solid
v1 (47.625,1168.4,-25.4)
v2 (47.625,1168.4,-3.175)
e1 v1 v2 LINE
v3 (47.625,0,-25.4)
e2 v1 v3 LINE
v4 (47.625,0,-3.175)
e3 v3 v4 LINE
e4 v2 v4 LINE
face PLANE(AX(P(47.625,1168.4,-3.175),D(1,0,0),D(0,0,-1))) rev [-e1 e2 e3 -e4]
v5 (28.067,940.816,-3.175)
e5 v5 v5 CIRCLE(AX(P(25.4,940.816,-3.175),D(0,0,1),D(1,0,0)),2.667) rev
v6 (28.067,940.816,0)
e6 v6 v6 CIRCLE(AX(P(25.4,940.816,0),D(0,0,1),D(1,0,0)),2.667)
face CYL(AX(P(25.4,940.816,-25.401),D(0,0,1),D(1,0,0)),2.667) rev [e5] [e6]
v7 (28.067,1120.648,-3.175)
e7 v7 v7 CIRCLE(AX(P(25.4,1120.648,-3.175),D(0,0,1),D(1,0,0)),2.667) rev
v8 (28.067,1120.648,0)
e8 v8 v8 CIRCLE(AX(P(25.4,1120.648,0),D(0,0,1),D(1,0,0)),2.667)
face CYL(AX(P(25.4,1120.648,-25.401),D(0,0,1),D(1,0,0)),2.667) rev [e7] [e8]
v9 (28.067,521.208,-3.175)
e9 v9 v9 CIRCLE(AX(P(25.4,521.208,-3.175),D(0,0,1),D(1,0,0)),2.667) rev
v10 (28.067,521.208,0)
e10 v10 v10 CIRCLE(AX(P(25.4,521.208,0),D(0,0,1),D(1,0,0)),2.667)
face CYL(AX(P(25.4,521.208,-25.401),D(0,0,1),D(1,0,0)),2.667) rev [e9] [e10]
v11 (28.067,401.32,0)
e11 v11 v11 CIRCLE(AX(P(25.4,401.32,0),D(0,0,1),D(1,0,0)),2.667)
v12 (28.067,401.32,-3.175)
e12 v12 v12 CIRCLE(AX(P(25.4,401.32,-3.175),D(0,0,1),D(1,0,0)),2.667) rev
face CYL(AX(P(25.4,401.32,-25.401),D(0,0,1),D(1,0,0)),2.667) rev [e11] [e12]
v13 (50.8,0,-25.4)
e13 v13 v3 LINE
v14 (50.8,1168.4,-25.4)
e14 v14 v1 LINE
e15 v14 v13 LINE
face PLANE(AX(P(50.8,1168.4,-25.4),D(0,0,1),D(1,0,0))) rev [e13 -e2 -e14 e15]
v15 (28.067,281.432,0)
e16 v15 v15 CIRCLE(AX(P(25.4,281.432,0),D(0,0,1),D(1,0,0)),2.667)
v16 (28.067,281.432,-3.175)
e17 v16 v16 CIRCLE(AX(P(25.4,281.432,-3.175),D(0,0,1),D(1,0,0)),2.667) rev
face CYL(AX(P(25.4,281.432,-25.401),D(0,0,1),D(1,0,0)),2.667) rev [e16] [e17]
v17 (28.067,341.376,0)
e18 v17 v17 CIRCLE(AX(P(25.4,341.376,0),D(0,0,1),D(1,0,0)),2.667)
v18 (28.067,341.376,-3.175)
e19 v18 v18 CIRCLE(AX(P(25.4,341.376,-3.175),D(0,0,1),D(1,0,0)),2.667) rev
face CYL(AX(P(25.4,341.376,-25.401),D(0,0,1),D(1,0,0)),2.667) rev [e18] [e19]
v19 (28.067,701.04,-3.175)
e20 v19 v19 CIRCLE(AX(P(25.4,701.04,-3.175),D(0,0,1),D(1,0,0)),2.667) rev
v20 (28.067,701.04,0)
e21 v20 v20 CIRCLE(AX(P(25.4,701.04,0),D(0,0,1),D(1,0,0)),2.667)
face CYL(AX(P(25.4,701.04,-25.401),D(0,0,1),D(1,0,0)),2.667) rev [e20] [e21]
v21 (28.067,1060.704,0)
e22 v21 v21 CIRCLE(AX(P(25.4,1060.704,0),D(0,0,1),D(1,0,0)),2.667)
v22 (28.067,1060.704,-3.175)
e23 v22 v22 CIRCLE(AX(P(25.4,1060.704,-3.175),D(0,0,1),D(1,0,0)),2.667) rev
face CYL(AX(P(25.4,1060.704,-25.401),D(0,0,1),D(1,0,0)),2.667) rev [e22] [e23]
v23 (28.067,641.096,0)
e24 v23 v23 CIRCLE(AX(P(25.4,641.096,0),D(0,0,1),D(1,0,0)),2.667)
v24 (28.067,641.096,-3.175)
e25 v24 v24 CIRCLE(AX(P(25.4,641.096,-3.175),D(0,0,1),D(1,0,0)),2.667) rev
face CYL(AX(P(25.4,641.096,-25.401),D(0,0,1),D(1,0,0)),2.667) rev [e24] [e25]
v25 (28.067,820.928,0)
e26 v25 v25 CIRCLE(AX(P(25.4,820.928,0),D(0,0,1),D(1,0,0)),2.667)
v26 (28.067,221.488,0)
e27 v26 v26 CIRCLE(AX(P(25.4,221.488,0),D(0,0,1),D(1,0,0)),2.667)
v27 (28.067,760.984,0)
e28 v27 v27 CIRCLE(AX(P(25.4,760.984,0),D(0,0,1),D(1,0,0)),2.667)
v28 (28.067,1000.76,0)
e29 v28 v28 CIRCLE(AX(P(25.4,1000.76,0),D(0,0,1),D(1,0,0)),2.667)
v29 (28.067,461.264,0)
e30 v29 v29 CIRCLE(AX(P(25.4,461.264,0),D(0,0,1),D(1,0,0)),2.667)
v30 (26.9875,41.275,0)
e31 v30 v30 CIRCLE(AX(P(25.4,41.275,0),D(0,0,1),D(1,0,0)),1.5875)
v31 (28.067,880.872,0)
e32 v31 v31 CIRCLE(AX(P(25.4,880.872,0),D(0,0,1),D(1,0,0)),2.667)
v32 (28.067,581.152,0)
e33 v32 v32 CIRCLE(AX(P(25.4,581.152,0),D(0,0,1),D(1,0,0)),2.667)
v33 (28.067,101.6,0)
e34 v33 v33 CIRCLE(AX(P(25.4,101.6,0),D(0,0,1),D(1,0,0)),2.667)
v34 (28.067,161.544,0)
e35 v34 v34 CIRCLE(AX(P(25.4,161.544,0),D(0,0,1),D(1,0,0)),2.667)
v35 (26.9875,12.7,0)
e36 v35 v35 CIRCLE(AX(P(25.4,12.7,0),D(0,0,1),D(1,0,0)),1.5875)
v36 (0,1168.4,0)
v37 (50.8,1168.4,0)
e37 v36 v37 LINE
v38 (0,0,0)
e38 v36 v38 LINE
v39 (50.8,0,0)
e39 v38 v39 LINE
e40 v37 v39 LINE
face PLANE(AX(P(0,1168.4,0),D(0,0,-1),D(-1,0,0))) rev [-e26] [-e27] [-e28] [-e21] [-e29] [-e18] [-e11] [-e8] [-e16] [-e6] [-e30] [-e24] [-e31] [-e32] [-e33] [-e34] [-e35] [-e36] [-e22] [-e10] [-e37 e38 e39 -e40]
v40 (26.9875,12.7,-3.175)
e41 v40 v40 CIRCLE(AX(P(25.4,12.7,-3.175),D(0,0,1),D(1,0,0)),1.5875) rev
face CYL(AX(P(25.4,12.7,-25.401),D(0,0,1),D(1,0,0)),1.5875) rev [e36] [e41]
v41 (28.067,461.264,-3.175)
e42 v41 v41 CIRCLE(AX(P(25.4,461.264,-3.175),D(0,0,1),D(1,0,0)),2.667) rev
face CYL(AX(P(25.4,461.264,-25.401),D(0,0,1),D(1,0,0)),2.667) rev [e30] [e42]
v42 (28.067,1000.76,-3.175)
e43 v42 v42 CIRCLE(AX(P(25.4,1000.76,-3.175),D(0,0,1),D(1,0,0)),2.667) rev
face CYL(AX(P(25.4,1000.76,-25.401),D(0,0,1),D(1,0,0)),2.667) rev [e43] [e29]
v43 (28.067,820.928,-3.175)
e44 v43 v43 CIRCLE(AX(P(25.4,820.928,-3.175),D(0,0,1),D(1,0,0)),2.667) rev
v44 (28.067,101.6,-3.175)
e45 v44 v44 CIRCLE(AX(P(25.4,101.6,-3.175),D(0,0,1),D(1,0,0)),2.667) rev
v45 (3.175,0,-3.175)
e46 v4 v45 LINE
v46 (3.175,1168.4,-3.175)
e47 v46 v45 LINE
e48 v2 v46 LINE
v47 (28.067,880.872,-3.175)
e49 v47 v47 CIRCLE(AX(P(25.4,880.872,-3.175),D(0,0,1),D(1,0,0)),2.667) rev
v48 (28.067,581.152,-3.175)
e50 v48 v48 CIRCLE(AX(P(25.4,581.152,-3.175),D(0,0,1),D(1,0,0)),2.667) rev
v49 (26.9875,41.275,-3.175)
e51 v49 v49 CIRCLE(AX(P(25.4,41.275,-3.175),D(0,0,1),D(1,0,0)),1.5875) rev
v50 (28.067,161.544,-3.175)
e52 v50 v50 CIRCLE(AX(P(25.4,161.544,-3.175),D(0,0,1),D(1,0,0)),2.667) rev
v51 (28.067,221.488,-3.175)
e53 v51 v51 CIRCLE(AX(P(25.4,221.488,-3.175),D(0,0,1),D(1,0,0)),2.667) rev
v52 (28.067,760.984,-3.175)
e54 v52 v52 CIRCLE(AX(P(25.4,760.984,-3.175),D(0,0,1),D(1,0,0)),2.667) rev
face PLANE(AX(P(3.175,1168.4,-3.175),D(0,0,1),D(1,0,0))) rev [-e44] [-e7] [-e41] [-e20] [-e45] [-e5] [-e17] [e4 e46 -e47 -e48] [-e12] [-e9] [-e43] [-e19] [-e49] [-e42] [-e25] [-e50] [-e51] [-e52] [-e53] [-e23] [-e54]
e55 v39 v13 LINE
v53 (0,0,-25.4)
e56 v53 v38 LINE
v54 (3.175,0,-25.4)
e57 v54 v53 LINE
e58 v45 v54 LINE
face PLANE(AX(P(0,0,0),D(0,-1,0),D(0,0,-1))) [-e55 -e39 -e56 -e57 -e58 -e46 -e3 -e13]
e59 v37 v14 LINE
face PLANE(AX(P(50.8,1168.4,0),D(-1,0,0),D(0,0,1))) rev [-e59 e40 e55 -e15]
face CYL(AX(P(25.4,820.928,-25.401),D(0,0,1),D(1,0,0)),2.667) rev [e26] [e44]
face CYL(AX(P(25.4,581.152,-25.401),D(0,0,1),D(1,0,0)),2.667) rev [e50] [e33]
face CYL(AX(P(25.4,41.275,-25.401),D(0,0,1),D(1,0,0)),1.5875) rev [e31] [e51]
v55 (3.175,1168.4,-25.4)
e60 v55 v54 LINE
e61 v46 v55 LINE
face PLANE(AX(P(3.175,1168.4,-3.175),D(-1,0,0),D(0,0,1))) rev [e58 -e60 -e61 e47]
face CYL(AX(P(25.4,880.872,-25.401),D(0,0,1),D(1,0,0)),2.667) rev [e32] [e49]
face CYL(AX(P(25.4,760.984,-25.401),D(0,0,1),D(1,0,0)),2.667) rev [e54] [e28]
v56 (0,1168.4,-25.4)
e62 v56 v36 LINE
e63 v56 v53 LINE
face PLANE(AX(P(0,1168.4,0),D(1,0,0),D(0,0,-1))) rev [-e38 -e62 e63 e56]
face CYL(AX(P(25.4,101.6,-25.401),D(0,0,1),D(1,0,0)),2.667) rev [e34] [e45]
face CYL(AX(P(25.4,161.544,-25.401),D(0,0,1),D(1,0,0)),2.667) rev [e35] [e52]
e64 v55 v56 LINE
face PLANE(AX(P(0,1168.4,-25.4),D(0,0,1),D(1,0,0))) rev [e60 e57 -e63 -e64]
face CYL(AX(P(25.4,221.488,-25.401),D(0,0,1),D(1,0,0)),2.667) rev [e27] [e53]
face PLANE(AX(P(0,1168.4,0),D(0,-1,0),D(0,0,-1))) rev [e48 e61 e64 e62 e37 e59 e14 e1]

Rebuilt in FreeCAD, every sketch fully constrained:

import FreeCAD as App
import Part
import Sketcher
from FreeCAD import Vector
Q = App.Units.Quantity

doc = App.newDocument("Part")
params = doc.addObject("Spreadsheet::Sheet", "Params")
for row, (alias, value) in enumerate([
    ("sketch1_width", "2 in"),
    ("sketch1_height", "1 in"),
    ("sketch1_width2", "1.75 in"),
    ("sketch1_height2", "0.875 in"),
    ("pad1_length", "46 in"),
    ("sketch2_diameter", "0.21 in"),
    ("sketch3_diameter", "0.21 in"),
    ("sketch4_diameter", "0.21 in"),
    ("sketch5_diameter", "0.21 in"),
    ("sketch6_diameter", "0.21 in"),
    ("sketch7_diameter", "0.21 in"),
    ("sketch8_diameter", "0.21 in"),
    ("sketch9_diameter", "0.21 in"),
    ("sketch10_diameter", "0.21 in"),
    ("sketch11_diameter", "0.21 in"),
    ("sketch12_diameter", "0.21 in"),
    ("sketch13_diameter", "0.21 in"),
    ("sketch14_diameter", "0.21 in"),
    ("sketch15_diameter", "0.21 in"),
    ("sketch16_diameter", "0.21 in"),
    ("sketch17_diameter", "0.21 in"),
    ("sketch18_diameter", "0.21 in"),
    ("sketch19_diameter", "0.21 in"),
    ("sketch20_diameter", "0.125 in"),
    ("sketch21_diameter", "0.125 in"),
], start=1):
    params.set(f"A{row}", alias)
    params.set(f"B{row}", "=" + value)
    params.setAlias(f"B{row}", alias)

body = doc.addObject("PartDesign::Body", "Body")

# Sketch on XZ plane
sketch1 = body.newObject("Sketcher::SketchObject", "Sketch")
sketch1.AttachmentSupport = (doc.getObject("XZ_Plane"), [""])
sketch1.MapMode = "FlatFace"
sketch1.addGeometry([
    Part.LineSegment(Vector(3.2, -3.2, 0), Vector(3.2, -25.4, 0)),  # 0
    Part.LineSegment(Vector(3.2, -25.4, 0), Vector(0, -25.4, 0)),  # 1
    Part.LineSegment(Vector(0, -25.4, 0), Vector(0, 0, 0)),  # 2
    Part.LineSegment(Vector(0, 0, 0), Vector(50.8, 0, 0)),  # 3
    Part.LineSegment(Vector(50.8, 0, 0), Vector(50.8, -25.4, 0)),  # 4
    Part.LineSegment(Vector(50.8, -25.4, 0), Vector(47.6, -25.4, 0)),  # 5
    Part.LineSegment(Vector(47.6, -25.4, 0), Vector(47.6, -3.2, 0)),  # 6
    Part.LineSegment(Vector(47.6, -3.2, 0), Vector(3.2, -3.2, 0)),  # 7
], False)
sketch1.addConstraint([
    Sketcher.Constraint("Coincident", 0, 2, 1, 1),
    Sketcher.Constraint("Coincident", 1, 2, 2, 1),
    Sketcher.Constraint("Coincident", 2, 2, 3, 1),
    Sketcher.Constraint("Coincident", 3, 2, 4, 1),
    Sketcher.Constraint("Coincident", 4, 2, 5, 1),
    Sketcher.Constraint("Coincident", 5, 2, 6, 1),
    Sketcher.Constraint("Coincident", 6, 2, 7, 1),
    Sketcher.Constraint("Coincident", 7, 2, 0, 1),
    Sketcher.Constraint("Vertical", 0),
    Sketcher.Constraint("Horizontal", 1),
    Sketcher.Constraint("Vertical", 2),
    Sketcher.Constraint("Horizontal", 3),
    Sketcher.Constraint("Vertical", 4),
    Sketcher.Constraint("Horizontal", 5),
    Sketcher.Constraint("Vertical", 6),
    Sketcher.Constraint("Horizontal", 7),
    Sketcher.Constraint("Coincident", 2, 2, -1, 1),
    Sketcher.Constraint("Horizontal", 1, 2, 4, 2),
    Sketcher.Constraint("Equal", 1, 5),
    Sketcher.Constraint("DistanceX", 3, 1, 3, 2, Q("2 in")),
    Sketcher.Constraint("DistanceY", 2, 1, 2, 2, Q("1 in")),
    Sketcher.Constraint("DistanceX", 7, 2, 7, 1, Q("1.75 in")),
    Sketcher.Constraint("DistanceY", 0, 2, 0, 1, Q("0.875 in")),
])
sketch1.setExpression("Constraints[19]", "Params.sketch1_width")
sketch1.setExpression("Constraints[20]", "Params.sketch1_height")
sketch1.setExpression("Constraints[21]", "Params.sketch1_width2")
sketch1.setExpression("Constraints[22]", "Params.sketch1_height2")
pad1 = body.newObject("PartDesign::Pad", "Pad")
pad1.Profile = sketch1
pad1.setExpression("Length", "Params.pad1_length")
pad1.Reversed = True

# Sketch on XY plane
sketch2 = body.newObject("Sketcher::SketchObject", "Sketch001")
sketch2.AttachmentSupport = (doc.getObject("XY_Plane"), [""])
sketch2.MapMode = "FlatFace"
sketch2.addGeometry(Part.Circle(Vector(25.4, 101.6, 0), Vector(0, 0, 1), 2.7), False)
sketch2.addConstraint([
    Sketcher.Constraint("Diameter", 0, Q("0.21 in")),
    Sketcher.Constraint("DistanceX", -1, 1, 0, 3, Q("1 in")),
    Sketcher.Constraint("DistanceY", -1, 1, 0, 3, Q("4 in")),
])
sketch2.setExpression("Constraints[0]", "Params.sketch2_diameter")
pocket1 = body.newObject("PartDesign::Pocket", "Pocket")
pocket1.Profile = sketch2
pocket1.Type = "UpToFirst"

# Sketch on XY plane
sketch3 = body.newObject("Sketcher::SketchObject", "Sketch002")
sketch3.AttachmentSupport = (doc.getObject("XY_Plane"), [""])
sketch3.MapMode = "FlatFace"
sketch3.addGeometry(Part.Circle(Vector(25.4, 161.5, 0), Vector(0, 0, 1), 2.7), False)
sketch3.addConstraint([
    Sketcher.Constraint("Diameter", 0, Q("0.21 in")),
    Sketcher.Constraint("DistanceX", -1, 1, 0, 3, Q("1 in")),
    Sketcher.Constraint("DistanceY", -1, 1, 0, 3, Q("6.36 in")),
])
sketch3.setExpression("Constraints[0]", "Params.sketch3_diameter")
pocket2 = body.newObject("PartDesign::Pocket", "Pocket001")
pocket2.Profile = sketch3
pocket2.Type = "UpToFirst"

# Sketch on XY plane
sketch4 = body.newObject("Sketcher::SketchObject", "Sketch003")
sketch4.AttachmentSupport = (doc.getObject("XY_Plane"), [""])
sketch4.MapMode = "FlatFace"
sketch4.addGeometry(Part.Circle(Vector(25.4, 221.5, 0), Vector(0, 0, 1), 2.7), False)
sketch4.addConstraint([
    Sketcher.Constraint("Diameter", 0, Q("0.21 in")),
    Sketcher.Constraint("DistanceX", -1, 1, 0, 3, Q("1 in")),
    Sketcher.Constraint("DistanceY", -1, 1, 0, 3, Q("8.72 in")),
])
sketch4.setExpression("Constraints[0]", "Params.sketch4_diameter")
pocket3 = body.newObject("PartDesign::Pocket", "Pocket002")
pocket3.Profile = sketch4
pocket3.Type = "UpToFirst"

# Sketch on XY plane
sketch5 = body.newObject("Sketcher::SketchObject", "Sketch004")
sketch5.AttachmentSupport = (doc.getObject("XY_Plane"), [""])
sketch5.MapMode = "FlatFace"
sketch5.addGeometry(Part.Circle(Vector(25.4, 281.4, 0), Vector(0, 0, 1), 2.7), False)
sketch5.addConstraint([
    Sketcher.Constraint("Diameter", 0, Q("0.21 in")),
    Sketcher.Constraint("DistanceX", -1, 1, 0, 3, Q("1 in")),
    Sketcher.Constraint("DistanceY", -1, 1, 0, 3, Q("11.08 in")),
])
sketch5.setExpression("Constraints[0]", "Params.sketch5_diameter")
pocket4 = body.newObject("PartDesign::Pocket", "Pocket003")
pocket4.Profile = sketch5
pocket4.Type = "UpToFirst"

# Sketch on XY plane
sketch6 = body.newObject("Sketcher::SketchObject", "Sketch005")
sketch6.AttachmentSupport = (doc.getObject("XY_Plane"), [""])
sketch6.MapMode = "FlatFace"
sketch6.addGeometry(Part.Circle(Vector(25.4, 341.4, 0), Vector(0, 0, 1), 2.7), False)
sketch6.addConstraint([
    Sketcher.Constraint("Diameter", 0, Q("0.21 in")),
    Sketcher.Constraint("DistanceX", -1, 1, 0, 3, Q("1 in")),
    Sketcher.Constraint("DistanceY", -1, 1, 0, 3, Q("13.44 in")),
])
sketch6.setExpression("Constraints[0]", "Params.sketch6_diameter")
pocket5 = body.newObject("PartDesign::Pocket", "Pocket004")
pocket5.Profile = sketch6
pocket5.Type = "UpToFirst"

# Sketch on XY plane
sketch7 = body.newObject("Sketcher::SketchObject", "Sketch006")
sketch7.AttachmentSupport = (doc.getObject("XY_Plane"), [""])
sketch7.MapMode = "FlatFace"
sketch7.addGeometry(Part.Circle(Vector(25.4, 401.3, 0), Vector(0, 0, 1), 2.7), False)
sketch7.addConstraint([
    Sketcher.Constraint("Diameter", 0, Q("0.21 in")),
    Sketcher.Constraint("DistanceX", -1, 1, 0, 3, Q("1 in")),
    Sketcher.Constraint("DistanceY", -1, 1, 0, 3, Q("15.8 in")),
])
sketch7.setExpression("Constraints[0]", "Params.sketch7_diameter")
pocket6 = body.newObject("PartDesign::Pocket", "Pocket005")
pocket6.Profile = sketch7
pocket6.Type = "UpToFirst"

# Sketch on XY plane
sketch8 = body.newObject("Sketcher::SketchObject", "Sketch007")
sketch8.AttachmentSupport = (doc.getObject("XY_Plane"), [""])
sketch8.MapMode = "FlatFace"
sketch8.addGeometry(Part.Circle(Vector(25.4, 461.3, 0), Vector(0, 0, 1), 2.7), False)
sketch8.addConstraint([
    Sketcher.Constraint("Diameter", 0, Q("0.21 in")),
    Sketcher.Constraint("DistanceX", -1, 1, 0, 3, Q("1 in")),
    Sketcher.Constraint("DistanceY", -1, 1, 0, 3, Q("18.16 in")),
])
sketch8.setExpression("Constraints[0]", "Params.sketch8_diameter")
pocket7 = body.newObject("PartDesign::Pocket", "Pocket006")
pocket7.Profile = sketch8
pocket7.Type = "UpToFirst"

# Sketch on XY plane
sketch9 = body.newObject("Sketcher::SketchObject", "Sketch008")
sketch9.AttachmentSupport = (doc.getObject("XY_Plane"), [""])
sketch9.MapMode = "FlatFace"
sketch9.addGeometry(Part.Circle(Vector(25.4, 521.2, 0), Vector(0, 0, 1), 2.7), False)
sketch9.addConstraint([
    Sketcher.Constraint("Diameter", 0, Q("0.21 in")),
    Sketcher.Constraint("DistanceX", -1, 1, 0, 3, Q("1 in")),
    Sketcher.Constraint("DistanceY", -1, 1, 0, 3, Q("20.52 in")),
])
sketch9.setExpression("Constraints[0]", "Params.sketch9_diameter")
pocket8 = body.newObject("PartDesign::Pocket", "Pocket007")
pocket8.Profile = sketch9
pocket8.Type = "UpToFirst"

# Sketch on XY plane
sketch10 = body.newObject("Sketcher::SketchObject", "Sketch009")
sketch10.AttachmentSupport = (doc.getObject("XY_Plane"), [""])
sketch10.MapMode = "FlatFace"
sketch10.addGeometry(Part.Circle(Vector(25.4, 581.2, 0), Vector(0, 0, 1), 2.7), False)
sketch10.addConstraint([
    Sketcher.Constraint("Diameter", 0, Q("0.21 in")),
    Sketcher.Constraint("DistanceX", -1, 1, 0, 3, Q("1 in")),
    Sketcher.Constraint("DistanceY", -1, 1, 0, 3, Q("22.88 in")),
])
sketch10.setExpression("Constraints[0]", "Params.sketch10_diameter")
pocket9 = body.newObject("PartDesign::Pocket", "Pocket008")
pocket9.Profile = sketch10
pocket9.Type = "UpToFirst"

# Sketch on XY plane
sketch11 = body.newObject("Sketcher::SketchObject", "Sketch010")
sketch11.AttachmentSupport = (doc.getObject("XY_Plane"), [""])
sketch11.MapMode = "FlatFace"
sketch11.addGeometry(Part.Circle(Vector(25.4, 641.1, 0), Vector(0, 0, 1), 2.7), False)
sketch11.addConstraint([
    Sketcher.Constraint("Diameter", 0, Q("0.21 in")),
    Sketcher.Constraint("DistanceX", -1, 1, 0, 3, Q("1 in")),
    Sketcher.Constraint("DistanceY", -1, 1, 0, 3, Q("25.24 in")),
])
sketch11.setExpression("Constraints[0]", "Params.sketch11_diameter")
pocket10 = body.newObject("PartDesign::Pocket", "Pocket009")
pocket10.Profile = sketch11
pocket10.Type = "UpToFirst"

# Sketch on XY plane
sketch12 = body.newObject("Sketcher::SketchObject", "Sketch011")
sketch12.AttachmentSupport = (doc.getObject("XY_Plane"), [""])
sketch12.MapMode = "FlatFace"
sketch12.addGeometry(Part.Circle(Vector(25.4, 701, 0), Vector(0, 0, 1), 2.7), False)
sketch12.addConstraint([
    Sketcher.Constraint("Diameter", 0, Q("0.21 in")),
    Sketcher.Constraint("DistanceX", -1, 1, 0, 3, Q("1 in")),
    Sketcher.Constraint("DistanceY", -1, 1, 0, 3, Q("27.6 in")),
])
sketch12.setExpression("Constraints[0]", "Params.sketch12_diameter")
pocket11 = body.newObject("PartDesign::Pocket", "Pocket010")
pocket11.Profile = sketch12
pocket11.Type = "UpToFirst"

# Sketch on XY plane
sketch13 = body.newObject("Sketcher::SketchObject", "Sketch012")
sketch13.AttachmentSupport = (doc.getObject("XY_Plane"), [""])
sketch13.MapMode = "FlatFace"
sketch13.addGeometry(Part.Circle(Vector(25.4, 761, 0), Vector(0, 0, 1), 2.7), False)
sketch13.addConstraint([
    Sketcher.Constraint("Diameter", 0, Q("0.21 in")),
    Sketcher.Constraint("DistanceX", -1, 1, 0, 3, Q("1 in")),
    Sketcher.Constraint("DistanceY", -1, 1, 0, 3, Q("29.96 in")),
])
sketch13.setExpression("Constraints[0]", "Params.sketch13_diameter")
pocket12 = body.newObject("PartDesign::Pocket", "Pocket011")
pocket12.Profile = sketch13
pocket12.Type = "UpToFirst"

# Sketch on XY plane
sketch14 = body.newObject("Sketcher::SketchObject", "Sketch013")
sketch14.AttachmentSupport = (doc.getObject("XY_Plane"), [""])
sketch14.MapMode = "FlatFace"
sketch14.addGeometry(Part.Circle(Vector(25.4, 820.9, 0), Vector(0, 0, 1), 2.7), False)
sketch14.addConstraint([
    Sketcher.Constraint("Diameter", 0, Q("0.21 in")),
    Sketcher.Constraint("DistanceX", -1, 1, 0, 3, Q("1 in")),
    Sketcher.Constraint("DistanceY", -1, 1, 0, 3, Q("32.32 in")),
])
sketch14.setExpression("Constraints[0]", "Params.sketch14_diameter")
pocket13 = body.newObject("PartDesign::Pocket", "Pocket012")
pocket13.Profile = sketch14
pocket13.Type = "UpToFirst"

# Sketch on XY plane
sketch15 = body.newObject("Sketcher::SketchObject", "Sketch014")
sketch15.AttachmentSupport = (doc.getObject("XY_Plane"), [""])
sketch15.MapMode = "FlatFace"
sketch15.addGeometry(Part.Circle(Vector(25.4, 880.9, 0), Vector(0, 0, 1), 2.7), False)
sketch15.addConstraint([
    Sketcher.Constraint("Diameter", 0, Q("0.21 in")),
    Sketcher.Constraint("DistanceX", -1, 1, 0, 3, Q("1 in")),
    Sketcher.Constraint("DistanceY", -1, 1, 0, 3, Q("34.68 in")),
])
sketch15.setExpression("Constraints[0]", "Params.sketch15_diameter")
pocket14 = body.newObject("PartDesign::Pocket", "Pocket013")
pocket14.Profile = sketch15
pocket14.Type = "UpToFirst"

# Sketch on XY plane
sketch16 = body.newObject("Sketcher::SketchObject", "Sketch015")
sketch16.AttachmentSupport = (doc.getObject("XY_Plane"), [""])
sketch16.MapMode = "FlatFace"
sketch16.addGeometry(Part.Circle(Vector(25.4, 940.8, 0), Vector(0, 0, 1), 2.7), False)
sketch16.addConstraint([
    Sketcher.Constraint("Diameter", 0, Q("0.21 in")),
    Sketcher.Constraint("DistanceX", -1, 1, 0, 3, Q("1 in")),
    Sketcher.Constraint("DistanceY", -1, 1, 0, 3, Q("37.04 in")),
])
sketch16.setExpression("Constraints[0]", "Params.sketch16_diameter")
pocket15 = body.newObject("PartDesign::Pocket", "Pocket014")
pocket15.Profile = sketch16
pocket15.Type = "UpToFirst"

# Sketch on XY plane
sketch17 = body.newObject("Sketcher::SketchObject", "Sketch016")
sketch17.AttachmentSupport = (doc.getObject("XY_Plane"), [""])
sketch17.MapMode = "FlatFace"
sketch17.addGeometry(Part.Circle(Vector(25.4, 1000.8, 0), Vector(0, 0, 1), 2.7), False)
sketch17.addConstraint([
    Sketcher.Constraint("Diameter", 0, Q("0.21 in")),
    Sketcher.Constraint("DistanceX", -1, 1, 0, 3, Q("1 in")),
    Sketcher.Constraint("DistanceY", -1, 1, 0, 3, Q("39.4 in")),
])
sketch17.setExpression("Constraints[0]", "Params.sketch17_diameter")
pocket16 = body.newObject("PartDesign::Pocket", "Pocket015")
pocket16.Profile = sketch17
pocket16.Type = "UpToFirst"

# Sketch on XY plane
sketch18 = body.newObject("Sketcher::SketchObject", "Sketch017")
sketch18.AttachmentSupport = (doc.getObject("XY_Plane"), [""])
sketch18.MapMode = "FlatFace"
sketch18.addGeometry(Part.Circle(Vector(25.4, 1060.7, 0), Vector(0, 0, 1), 2.7), False)
sketch18.addConstraint([
    Sketcher.Constraint("Diameter", 0, Q("0.21 in")),
    Sketcher.Constraint("DistanceX", -1, 1, 0, 3, Q("1 in")),
    Sketcher.Constraint("DistanceY", -1, 1, 0, 3, Q("41.76 in")),
])
sketch18.setExpression("Constraints[0]", "Params.sketch18_diameter")
pocket17 = body.newObject("PartDesign::Pocket", "Pocket016")
pocket17.Profile = sketch18
pocket17.Type = "UpToFirst"

# Sketch on XY plane
sketch19 = body.newObject("Sketcher::SketchObject", "Sketch018")
sketch19.AttachmentSupport = (doc.getObject("XY_Plane"), [""])
sketch19.MapMode = "FlatFace"
sketch19.addGeometry(Part.Circle(Vector(25.4, 1120.6, 0), Vector(0, 0, 1), 2.7), False)
sketch19.addConstraint([
    Sketcher.Constraint("Diameter", 0, Q("0.21 in")),
    Sketcher.Constraint("DistanceX", -1, 1, 0, 3, Q("1 in")),
    Sketcher.Constraint("DistanceY", -1, 1, 0, 3, Q("44.12 in")),
])
sketch19.setExpression("Constraints[0]", "Params.sketch19_diameter")
pocket18 = body.newObject("PartDesign::Pocket", "Pocket017")
pocket18.Profile = sketch19
pocket18.Type = "UpToFirst"

# Sketch on XY plane
sketch20 = body.newObject("Sketcher::SketchObject", "Sketch019")
sketch20.AttachmentSupport = (doc.getObject("XY_Plane"), [""])
sketch20.MapMode = "FlatFace"
sketch20.addGeometry(Part.Circle(Vector(25.4, 41.3, 0), Vector(0, 0, 1), 1.6), False)
sketch20.addConstraint([
    Sketcher.Constraint("Diameter", 0, Q("0.125 in")),
    Sketcher.Constraint("DistanceX", -1, 1, 0, 3, Q("1 in")),
    Sketcher.Constraint("DistanceY", -1, 1, 0, 3, Q("1.625 in")),
])
sketch20.setExpression("Constraints[0]", "Params.sketch20_diameter")
pocket19 = body.newObject("PartDesign::Pocket", "Pocket018")
pocket19.Profile = sketch20
pocket19.Type = "UpToFirst"

# Sketch on XY plane
sketch21 = body.newObject("Sketcher::SketchObject", "Sketch020")
sketch21.AttachmentSupport = (doc.getObject("XY_Plane"), [""])
sketch21.MapMode = "FlatFace"
sketch21.addGeometry(Part.Circle(Vector(25.4, 12.7, 0), Vector(0, 0, 1), 1.6), False)
sketch21.addConstraint([
    Sketcher.Constraint("Diameter", 0, Q("0.125 in")),
    Sketcher.Constraint("DistanceX", -1, 1, 0, 3, Q("1 in")),
    Sketcher.Constraint("DistanceY", -1, 1, 0, 3, Q("0.5 in")),
])
sketch21.setExpression("Constraints[0]", "Params.sketch21_diameter")
pocket20 = body.newObject("PartDesign::Pocket", "Pocket019")
pocket20.Profile = sketch21
pocket20.Type = "UpToFirst"

doc.recompute()
